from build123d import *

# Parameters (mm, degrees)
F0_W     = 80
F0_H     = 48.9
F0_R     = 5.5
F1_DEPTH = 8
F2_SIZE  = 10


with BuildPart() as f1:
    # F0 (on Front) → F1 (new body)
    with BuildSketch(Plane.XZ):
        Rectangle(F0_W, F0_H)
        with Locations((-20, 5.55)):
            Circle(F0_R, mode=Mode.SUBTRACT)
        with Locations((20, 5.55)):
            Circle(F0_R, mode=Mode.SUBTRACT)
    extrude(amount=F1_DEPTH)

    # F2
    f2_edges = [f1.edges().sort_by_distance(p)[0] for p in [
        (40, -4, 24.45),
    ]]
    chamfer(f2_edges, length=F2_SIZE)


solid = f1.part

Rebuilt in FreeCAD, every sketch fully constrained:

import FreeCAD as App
import Part
import Sketcher
from FreeCAD import Vector
Q = App.Units.Quantity


def edges_at(feature, points):
    """Names of the edges that pass closest to the given points."""
    edges = feature.Shape.Edges
    near = lambda p: min(range(len(edges)), key=lambda i: edges[i].distToShape(Part.Vertex(*p))[0])
    return sorted({f"Edge{near(p) + 1}" for p in points})


def add_polygon(sketch, points):
    """Adds a closed chain of lines whose ends are joined by coincident constraints."""
    first, n = sketch.GeometryCount, len(points)
    for a, b in zip(points, points[1:] + points[:1]):
        sketch.addGeometry(Part.LineSegment(App.Vector(*a, 0), App.Vector(*b, 0)), False)
    for i in range(n):
        sketch.addConstraint(Sketcher.Constraint("Coincident", first + i, 2, first + (i + 1) % n, 1))

doc = App.newDocument("Part")
body = doc.addObject("PartDesign::Body", "Body")

# Sketch on XZ plane
sketch1 = body.newObject("Sketcher::SketchObject", "Sketch")
sketch1.AttachmentSupport = (doc.getObject("XZ_Plane"), [""])
sketch1.MapMode = "FlatFace"
add_polygon(sketch1, [(-40, 24), (-40, -24), (40, -24), (40, 24)])  # lines 0-3
sketch1.addGeometry(Part.Circle(Vector(-20, 6, 0), Vector(0, 0, 1), 6), False)  # 4
sketch1.addGeometry(Part.Circle(Vector(20, 6, 0), Vector(0, 0, 1), 6), False)  # 5
sketch1.addConstraint([
    Sketcher.Constraint("Vertical", 0),
    Sketcher.Constraint("Horizontal", 1),
    Sketcher.Constraint("Vertical", 2),
    Sketcher.Constraint("Horizontal", 3),
    Sketcher.Constraint("Equal", 4, 5),
    Sketcher.Constraint("Symmetric", 0, 2, 2, 2, -1, 1),
    Sketcher.Constraint("Symmetric", 4, 3, 5, 3, -2),
    Sketcher.Constraint("Diameter", 4, Q("11 mm")),
    Sketcher.Constraint("DistanceX", 1, 1, 1, 2, Q("80 mm")),
    Sketcher.Constraint("DistanceY", 0, 2, 0, 1, Q("48.9 mm")),
    Sketcher.Constraint("DistanceX", 4, 3, -1, 1, Q("20 mm")),
    Sketcher.Constraint("DistanceY", 0, 2, 4, 3, Q("30 mm")),
])
pad1 = body.newObject("PartDesign::Pad", "Pad")
pad1.Profile = sketch1
pad1.Length = 8
doc.recompute()

chamfer = body.newObject("PartDesign::Chamfer", "Chamfer")
chamfer.Base = (pad1, edges_at(pad1, [(40, -4, 24.45)]))
chamfer.Size = 10

doc.recompute()
